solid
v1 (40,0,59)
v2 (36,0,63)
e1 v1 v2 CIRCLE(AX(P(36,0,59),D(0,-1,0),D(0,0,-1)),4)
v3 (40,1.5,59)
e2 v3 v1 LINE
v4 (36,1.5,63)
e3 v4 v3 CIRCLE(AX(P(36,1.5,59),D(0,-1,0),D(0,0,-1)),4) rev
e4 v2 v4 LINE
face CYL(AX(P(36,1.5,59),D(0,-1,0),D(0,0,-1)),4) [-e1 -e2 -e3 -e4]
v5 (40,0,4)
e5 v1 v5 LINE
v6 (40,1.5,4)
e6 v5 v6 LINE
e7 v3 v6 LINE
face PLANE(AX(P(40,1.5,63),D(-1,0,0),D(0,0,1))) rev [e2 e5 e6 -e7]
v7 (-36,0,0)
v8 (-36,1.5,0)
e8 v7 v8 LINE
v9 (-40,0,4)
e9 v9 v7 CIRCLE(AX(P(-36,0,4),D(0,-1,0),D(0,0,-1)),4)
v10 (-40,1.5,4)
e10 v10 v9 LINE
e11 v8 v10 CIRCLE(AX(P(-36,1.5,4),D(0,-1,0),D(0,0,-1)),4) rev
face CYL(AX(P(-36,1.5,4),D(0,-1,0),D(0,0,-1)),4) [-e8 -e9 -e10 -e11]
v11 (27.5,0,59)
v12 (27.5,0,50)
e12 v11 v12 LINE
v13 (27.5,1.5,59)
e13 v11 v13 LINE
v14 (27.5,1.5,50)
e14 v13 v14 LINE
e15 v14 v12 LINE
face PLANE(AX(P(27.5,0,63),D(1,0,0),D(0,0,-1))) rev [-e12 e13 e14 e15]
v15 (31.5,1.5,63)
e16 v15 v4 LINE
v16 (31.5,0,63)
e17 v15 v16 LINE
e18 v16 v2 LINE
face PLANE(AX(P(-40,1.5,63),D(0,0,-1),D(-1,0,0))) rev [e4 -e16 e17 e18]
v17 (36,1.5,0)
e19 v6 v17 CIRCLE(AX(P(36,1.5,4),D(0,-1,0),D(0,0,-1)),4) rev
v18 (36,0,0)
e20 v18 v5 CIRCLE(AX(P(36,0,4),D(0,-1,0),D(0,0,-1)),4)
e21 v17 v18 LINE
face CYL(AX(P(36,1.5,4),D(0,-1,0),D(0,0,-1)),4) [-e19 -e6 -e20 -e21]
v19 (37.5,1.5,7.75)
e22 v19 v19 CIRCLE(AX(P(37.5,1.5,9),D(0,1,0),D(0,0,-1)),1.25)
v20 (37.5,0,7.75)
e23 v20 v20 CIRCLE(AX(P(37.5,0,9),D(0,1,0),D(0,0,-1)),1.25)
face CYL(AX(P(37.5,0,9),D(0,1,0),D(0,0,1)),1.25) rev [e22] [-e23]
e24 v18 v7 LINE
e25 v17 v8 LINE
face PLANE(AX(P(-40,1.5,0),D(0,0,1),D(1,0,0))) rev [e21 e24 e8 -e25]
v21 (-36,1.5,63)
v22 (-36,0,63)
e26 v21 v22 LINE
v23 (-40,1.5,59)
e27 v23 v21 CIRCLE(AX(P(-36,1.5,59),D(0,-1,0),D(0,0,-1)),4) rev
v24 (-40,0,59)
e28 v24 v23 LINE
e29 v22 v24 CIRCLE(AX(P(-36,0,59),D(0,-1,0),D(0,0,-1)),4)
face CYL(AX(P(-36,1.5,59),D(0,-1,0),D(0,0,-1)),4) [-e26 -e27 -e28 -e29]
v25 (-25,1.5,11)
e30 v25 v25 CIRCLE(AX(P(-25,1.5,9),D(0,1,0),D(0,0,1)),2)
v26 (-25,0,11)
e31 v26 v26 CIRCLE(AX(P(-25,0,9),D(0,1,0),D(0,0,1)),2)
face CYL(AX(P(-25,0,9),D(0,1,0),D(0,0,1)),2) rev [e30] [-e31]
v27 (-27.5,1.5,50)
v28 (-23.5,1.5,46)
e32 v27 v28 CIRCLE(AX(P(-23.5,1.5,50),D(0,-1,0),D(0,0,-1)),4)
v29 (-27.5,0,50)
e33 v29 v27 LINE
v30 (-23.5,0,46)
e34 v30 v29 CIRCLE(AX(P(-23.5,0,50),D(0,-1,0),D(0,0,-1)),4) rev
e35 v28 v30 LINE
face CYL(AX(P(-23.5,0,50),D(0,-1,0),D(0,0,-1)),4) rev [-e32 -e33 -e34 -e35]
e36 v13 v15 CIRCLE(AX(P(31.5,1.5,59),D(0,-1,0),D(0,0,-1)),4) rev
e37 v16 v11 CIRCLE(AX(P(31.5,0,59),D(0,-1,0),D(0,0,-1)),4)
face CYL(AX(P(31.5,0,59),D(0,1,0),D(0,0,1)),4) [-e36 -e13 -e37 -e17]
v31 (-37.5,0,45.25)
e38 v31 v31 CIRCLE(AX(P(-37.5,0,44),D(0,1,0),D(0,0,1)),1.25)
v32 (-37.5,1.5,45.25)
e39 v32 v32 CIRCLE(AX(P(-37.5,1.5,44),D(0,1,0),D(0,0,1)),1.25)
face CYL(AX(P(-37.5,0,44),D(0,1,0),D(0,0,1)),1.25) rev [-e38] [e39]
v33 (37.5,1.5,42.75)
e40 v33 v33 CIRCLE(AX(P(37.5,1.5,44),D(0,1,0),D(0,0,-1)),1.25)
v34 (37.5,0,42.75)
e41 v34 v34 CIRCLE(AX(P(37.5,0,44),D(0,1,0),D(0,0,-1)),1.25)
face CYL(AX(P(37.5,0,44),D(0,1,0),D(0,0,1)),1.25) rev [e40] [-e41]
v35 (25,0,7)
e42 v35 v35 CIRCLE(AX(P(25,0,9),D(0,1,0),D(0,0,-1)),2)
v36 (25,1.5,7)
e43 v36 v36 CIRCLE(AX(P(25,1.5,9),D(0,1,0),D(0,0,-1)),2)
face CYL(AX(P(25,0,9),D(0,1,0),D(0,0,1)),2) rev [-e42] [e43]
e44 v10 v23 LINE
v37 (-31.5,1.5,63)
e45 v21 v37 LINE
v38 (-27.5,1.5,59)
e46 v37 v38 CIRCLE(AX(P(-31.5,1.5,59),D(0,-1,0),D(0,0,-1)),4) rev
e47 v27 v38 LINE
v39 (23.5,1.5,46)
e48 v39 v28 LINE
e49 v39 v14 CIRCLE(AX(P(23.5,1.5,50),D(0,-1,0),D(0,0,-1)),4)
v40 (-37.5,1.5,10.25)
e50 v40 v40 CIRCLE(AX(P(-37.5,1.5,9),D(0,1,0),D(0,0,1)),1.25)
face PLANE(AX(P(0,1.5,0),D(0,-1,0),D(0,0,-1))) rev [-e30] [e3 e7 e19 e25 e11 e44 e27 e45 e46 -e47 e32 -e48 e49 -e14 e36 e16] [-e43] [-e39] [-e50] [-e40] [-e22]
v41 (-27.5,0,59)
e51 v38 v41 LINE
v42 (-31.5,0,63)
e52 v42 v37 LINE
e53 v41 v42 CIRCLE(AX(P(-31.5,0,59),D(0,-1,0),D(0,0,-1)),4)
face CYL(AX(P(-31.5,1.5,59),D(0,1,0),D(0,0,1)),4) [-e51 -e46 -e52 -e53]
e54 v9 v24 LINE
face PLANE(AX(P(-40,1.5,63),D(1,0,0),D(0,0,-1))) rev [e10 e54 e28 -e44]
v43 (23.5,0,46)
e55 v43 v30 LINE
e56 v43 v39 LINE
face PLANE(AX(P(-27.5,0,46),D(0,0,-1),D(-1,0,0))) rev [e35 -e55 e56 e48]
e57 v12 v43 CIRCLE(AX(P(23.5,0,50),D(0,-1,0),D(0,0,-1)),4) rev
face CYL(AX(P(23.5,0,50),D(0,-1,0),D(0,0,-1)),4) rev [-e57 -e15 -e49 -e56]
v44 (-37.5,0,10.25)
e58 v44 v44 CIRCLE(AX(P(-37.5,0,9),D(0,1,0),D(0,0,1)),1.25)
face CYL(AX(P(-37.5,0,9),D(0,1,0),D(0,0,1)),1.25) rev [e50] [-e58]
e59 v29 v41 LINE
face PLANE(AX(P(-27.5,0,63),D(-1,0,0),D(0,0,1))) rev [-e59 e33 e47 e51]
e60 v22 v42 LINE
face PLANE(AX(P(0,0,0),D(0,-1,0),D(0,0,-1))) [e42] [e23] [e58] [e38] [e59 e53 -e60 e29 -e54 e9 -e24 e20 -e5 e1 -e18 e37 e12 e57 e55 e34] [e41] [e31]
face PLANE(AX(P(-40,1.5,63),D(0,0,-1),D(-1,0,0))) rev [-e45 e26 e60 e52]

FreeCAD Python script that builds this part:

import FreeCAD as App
import Part
import Sketcher

V = App.Vector


def edges_at(feature, points):
    """Names of the edges that pass closest to the given points."""
    edges = feature.Shape.Edges
    near = lambda p: min(range(len(edges)), key=lambda i: edges[i].distToShape(Part.Vertex(*p))[0])
    return sorted({f"Edge{near(p) + 1}" for p in points})

doc = App.newDocument("Part")
body = doc.addObject("PartDesign::Body", "Body")

# Sketch on XZ plane
sketch1 = body.newObject("Sketcher::SketchObject", "Sketch")
sketch1.AttachmentSupport = (doc.getObject("XZ_Plane"), [""])
sketch1.MapMode = "FlatFace"
sketch1.addGeometry(Part.LineSegment(V(-40, 0, 0), V(-40, 63, 0)), False)
sketch1.addGeometry(Part.LineSegment(V(-40, 63, 0), V(40, 63, 0)), False)
sketch1.addGeometry(Part.LineSegment(V(40, 63, 0), V(40, 0, 0)), False)
sketch1.addGeometry(Part.LineSegment(V(40, 0, 0), V(-40, 0, 0)), False)
sketch1.addConstraint(Sketcher.Constraint("Coincident", 0, 2, 1, 1))
sketch1.addConstraint(Sketcher.Constraint("Coincident", 1, 2, 2, 1))
sketch1.addConstraint(Sketcher.Constraint("Coincident", 2, 2, 3, 1))
sketch1.addConstraint(Sketcher.Constraint("Coincident", 3, 2, 0, 1))
sketch1.addConstraint(Sketcher.Constraint("Vertical", 0))
sketch1.addConstraint(Sketcher.Constraint("Horizontal", 1))
sketch1.addConstraint(Sketcher.Constraint("Vertical", 2))
sketch1.addConstraint(Sketcher.Constraint("Horizontal", 3))
sketch1.addConstraint(Sketcher.Constraint("Symmetric", 2, 2, 3, 2, -1, 1))
sketch1.addConstraint(Sketcher.Constraint("DistanceX", 1, 1, 1, 2, 80.0))
sketch1.addConstraint(Sketcher.Constraint("DistanceY", 0, 1, 0, 2, 63.0))
pad1 = body.newObject("PartDesign::Pad", "Pad")
pad1.Profile = sketch1
pad1.Length = 1.5
pad1.Reversed = True

# Sketch on XZ plane
sketch2 = body.newObject("Sketcher::SketchObject", "Sketch001")
sketch2.AttachmentSupport = (doc.getObject("XZ_Plane"), [""])
sketch2.MapMode = "FlatFace"
sketch2.AttachmentOffset = App.Placement(V(0, 0, -1.5), App.Rotation())
sketch2.addGeometry(Part.Circle(V(-37.5, 44, 0), V(0, 0, 1), 1.2), False)
sketch2.addGeometry(Part.Circle(V(-37.5, 9, 0), V(0, 0, 1), 1.2), False)
sketch2.addGeometry(Part.Circle(V(-25, 9, 0), V(0, 0, 1), 2), False)
sketch2.addGeometry(Part.Circle(V(25, 9, 0), V(0, 0, 1), 2), False)
sketch2.addGeometry(Part.Circle(V(37.5, 9, 0), V(0, 0, 1), 1.2), False)
sketch2.addGeometry(Part.Circle(V(37.5, 44, 0), V(0, 0, 1), 1.2), False)
sketch2.addGeometry(Part.LineSegment(V(-27.5, 46, 0), V(-27.5, 63, 0)), False)
sketch2.addGeometry(Part.LineSegment(V(-27.5, 63, 0), V(27.5, 63, 0)), False)
sketch2.addGeometry(Part.LineSegment(V(27.5, 63, 0), V(27.5, 46, 0)), False)
sketch2.addGeometry(Part.LineSegment(V(27.5, 46, 0), V(-27.5, 46, 0)), False)
sketch2.addConstraint(Sketcher.Constraint("Coincident", 6, 2, 7, 1))
sketch2.addConstraint(Sketcher.Constraint("Coincident", 7, 2, 8, 1))
sketch2.addConstraint(Sketcher.Constraint("Coincident", 8, 2, 9, 1))
sketch2.addConstraint(Sketcher.Constraint("Coincident", 9, 2, 6, 1))
sketch2.addConstraint(Sketcher.Constraint("Vertical", 6))
sketch2.addConstraint(Sketcher.Constraint("Horizontal", 7))
sketch2.addConstraint(Sketcher.Constraint("Vertical", 8))
sketch2.addConstraint(Sketcher.Constraint("Horizontal", 9))
sketch2.addConstraint(Sketcher.Constraint("Equal", 0, 1))
sketch2.addConstraint(Sketcher.Constraint("Equal", 2, 3))
sketch2.addConstraint(Sketcher.Constraint("Equal", 1, 4))
sketch2.addConstraint(Sketcher.Constraint("Equal", 4, 5))
sketch2.addConstraint(Sketcher.Constraint("Symmetric", 2, 3, 3, 3, -2))
sketch2.addConstraint(Sketcher.Constraint("Symmetric", 1, 3, 4, 3, -2))
sketch2.addConstraint(Sketcher.Constraint("Symmetric", 0, 3, 5, 3, -2))
sketch2.addConstraint(Sketcher.Constraint("Horizontal", 1, 3, 2, 3))
sketch2.addConstraint(Sketcher.Constraint("Vertical", 0, 3, 1, 3))
sketch2.addConstraint(Sketcher.Constraint("Diameter", 2, 4.0))
sketch2.addConstraint(Sketcher.Constraint("Diameter", 0, 2.5))
sketch2.addConstraint(Sketcher.Constraint("DistanceX", 7, 1, 7, 2, 55.0))
sketch2.addConstraint(Sketcher.Constraint("DistanceY", 6, 1, 6, 2, 17.0))
sketch2.addConstraint(Sketcher.Constraint("DistanceY", -1, 1, 0, 3, 44.0))
sketch2.addConstraint(Sketcher.Constraint("DistanceY", -1, 1, 1, 3, 9.0))
sketch2.addConstraint(Sketcher.Constraint("DistanceX", 2, 3, -1, 1, 25.0))
sketch2.addConstraint(Sketcher.Constraint("DistanceY", -1, 1, 6, 2, 63.0))
sketch2.addConstraint(Sketcher.Constraint("DistanceX", 1, 3, 4, 3, 75.0))
sketch2.addConstraint(Sketcher.Constraint("DistanceX", 0, 3, 6, 2, 10.0))
pocket1 = body.newObject("PartDesign::Pocket", "Pocket")
pocket1.Profile = sketch2
pocket1.Type = "ThroughAll"
pocket1.Reversed = True
doc.recompute()

fillet = body.newObject("PartDesign::Fillet", "Fillet")
fillet.Base = (pocket1, edges_at(pocket1, [
    (-27.5, 0.75, 63),
    (-27.5, 0.75, 46),
    (27.5, 0.75, 46),
    (27.5, 0.75, 63),
    (-40, 0.75, 0),
    (40, 0.75, 0),
    (40, 0.75, 63),
    (-40, 0.75, 63),
]))
fillet.Radius = 4

doc.recompute()
